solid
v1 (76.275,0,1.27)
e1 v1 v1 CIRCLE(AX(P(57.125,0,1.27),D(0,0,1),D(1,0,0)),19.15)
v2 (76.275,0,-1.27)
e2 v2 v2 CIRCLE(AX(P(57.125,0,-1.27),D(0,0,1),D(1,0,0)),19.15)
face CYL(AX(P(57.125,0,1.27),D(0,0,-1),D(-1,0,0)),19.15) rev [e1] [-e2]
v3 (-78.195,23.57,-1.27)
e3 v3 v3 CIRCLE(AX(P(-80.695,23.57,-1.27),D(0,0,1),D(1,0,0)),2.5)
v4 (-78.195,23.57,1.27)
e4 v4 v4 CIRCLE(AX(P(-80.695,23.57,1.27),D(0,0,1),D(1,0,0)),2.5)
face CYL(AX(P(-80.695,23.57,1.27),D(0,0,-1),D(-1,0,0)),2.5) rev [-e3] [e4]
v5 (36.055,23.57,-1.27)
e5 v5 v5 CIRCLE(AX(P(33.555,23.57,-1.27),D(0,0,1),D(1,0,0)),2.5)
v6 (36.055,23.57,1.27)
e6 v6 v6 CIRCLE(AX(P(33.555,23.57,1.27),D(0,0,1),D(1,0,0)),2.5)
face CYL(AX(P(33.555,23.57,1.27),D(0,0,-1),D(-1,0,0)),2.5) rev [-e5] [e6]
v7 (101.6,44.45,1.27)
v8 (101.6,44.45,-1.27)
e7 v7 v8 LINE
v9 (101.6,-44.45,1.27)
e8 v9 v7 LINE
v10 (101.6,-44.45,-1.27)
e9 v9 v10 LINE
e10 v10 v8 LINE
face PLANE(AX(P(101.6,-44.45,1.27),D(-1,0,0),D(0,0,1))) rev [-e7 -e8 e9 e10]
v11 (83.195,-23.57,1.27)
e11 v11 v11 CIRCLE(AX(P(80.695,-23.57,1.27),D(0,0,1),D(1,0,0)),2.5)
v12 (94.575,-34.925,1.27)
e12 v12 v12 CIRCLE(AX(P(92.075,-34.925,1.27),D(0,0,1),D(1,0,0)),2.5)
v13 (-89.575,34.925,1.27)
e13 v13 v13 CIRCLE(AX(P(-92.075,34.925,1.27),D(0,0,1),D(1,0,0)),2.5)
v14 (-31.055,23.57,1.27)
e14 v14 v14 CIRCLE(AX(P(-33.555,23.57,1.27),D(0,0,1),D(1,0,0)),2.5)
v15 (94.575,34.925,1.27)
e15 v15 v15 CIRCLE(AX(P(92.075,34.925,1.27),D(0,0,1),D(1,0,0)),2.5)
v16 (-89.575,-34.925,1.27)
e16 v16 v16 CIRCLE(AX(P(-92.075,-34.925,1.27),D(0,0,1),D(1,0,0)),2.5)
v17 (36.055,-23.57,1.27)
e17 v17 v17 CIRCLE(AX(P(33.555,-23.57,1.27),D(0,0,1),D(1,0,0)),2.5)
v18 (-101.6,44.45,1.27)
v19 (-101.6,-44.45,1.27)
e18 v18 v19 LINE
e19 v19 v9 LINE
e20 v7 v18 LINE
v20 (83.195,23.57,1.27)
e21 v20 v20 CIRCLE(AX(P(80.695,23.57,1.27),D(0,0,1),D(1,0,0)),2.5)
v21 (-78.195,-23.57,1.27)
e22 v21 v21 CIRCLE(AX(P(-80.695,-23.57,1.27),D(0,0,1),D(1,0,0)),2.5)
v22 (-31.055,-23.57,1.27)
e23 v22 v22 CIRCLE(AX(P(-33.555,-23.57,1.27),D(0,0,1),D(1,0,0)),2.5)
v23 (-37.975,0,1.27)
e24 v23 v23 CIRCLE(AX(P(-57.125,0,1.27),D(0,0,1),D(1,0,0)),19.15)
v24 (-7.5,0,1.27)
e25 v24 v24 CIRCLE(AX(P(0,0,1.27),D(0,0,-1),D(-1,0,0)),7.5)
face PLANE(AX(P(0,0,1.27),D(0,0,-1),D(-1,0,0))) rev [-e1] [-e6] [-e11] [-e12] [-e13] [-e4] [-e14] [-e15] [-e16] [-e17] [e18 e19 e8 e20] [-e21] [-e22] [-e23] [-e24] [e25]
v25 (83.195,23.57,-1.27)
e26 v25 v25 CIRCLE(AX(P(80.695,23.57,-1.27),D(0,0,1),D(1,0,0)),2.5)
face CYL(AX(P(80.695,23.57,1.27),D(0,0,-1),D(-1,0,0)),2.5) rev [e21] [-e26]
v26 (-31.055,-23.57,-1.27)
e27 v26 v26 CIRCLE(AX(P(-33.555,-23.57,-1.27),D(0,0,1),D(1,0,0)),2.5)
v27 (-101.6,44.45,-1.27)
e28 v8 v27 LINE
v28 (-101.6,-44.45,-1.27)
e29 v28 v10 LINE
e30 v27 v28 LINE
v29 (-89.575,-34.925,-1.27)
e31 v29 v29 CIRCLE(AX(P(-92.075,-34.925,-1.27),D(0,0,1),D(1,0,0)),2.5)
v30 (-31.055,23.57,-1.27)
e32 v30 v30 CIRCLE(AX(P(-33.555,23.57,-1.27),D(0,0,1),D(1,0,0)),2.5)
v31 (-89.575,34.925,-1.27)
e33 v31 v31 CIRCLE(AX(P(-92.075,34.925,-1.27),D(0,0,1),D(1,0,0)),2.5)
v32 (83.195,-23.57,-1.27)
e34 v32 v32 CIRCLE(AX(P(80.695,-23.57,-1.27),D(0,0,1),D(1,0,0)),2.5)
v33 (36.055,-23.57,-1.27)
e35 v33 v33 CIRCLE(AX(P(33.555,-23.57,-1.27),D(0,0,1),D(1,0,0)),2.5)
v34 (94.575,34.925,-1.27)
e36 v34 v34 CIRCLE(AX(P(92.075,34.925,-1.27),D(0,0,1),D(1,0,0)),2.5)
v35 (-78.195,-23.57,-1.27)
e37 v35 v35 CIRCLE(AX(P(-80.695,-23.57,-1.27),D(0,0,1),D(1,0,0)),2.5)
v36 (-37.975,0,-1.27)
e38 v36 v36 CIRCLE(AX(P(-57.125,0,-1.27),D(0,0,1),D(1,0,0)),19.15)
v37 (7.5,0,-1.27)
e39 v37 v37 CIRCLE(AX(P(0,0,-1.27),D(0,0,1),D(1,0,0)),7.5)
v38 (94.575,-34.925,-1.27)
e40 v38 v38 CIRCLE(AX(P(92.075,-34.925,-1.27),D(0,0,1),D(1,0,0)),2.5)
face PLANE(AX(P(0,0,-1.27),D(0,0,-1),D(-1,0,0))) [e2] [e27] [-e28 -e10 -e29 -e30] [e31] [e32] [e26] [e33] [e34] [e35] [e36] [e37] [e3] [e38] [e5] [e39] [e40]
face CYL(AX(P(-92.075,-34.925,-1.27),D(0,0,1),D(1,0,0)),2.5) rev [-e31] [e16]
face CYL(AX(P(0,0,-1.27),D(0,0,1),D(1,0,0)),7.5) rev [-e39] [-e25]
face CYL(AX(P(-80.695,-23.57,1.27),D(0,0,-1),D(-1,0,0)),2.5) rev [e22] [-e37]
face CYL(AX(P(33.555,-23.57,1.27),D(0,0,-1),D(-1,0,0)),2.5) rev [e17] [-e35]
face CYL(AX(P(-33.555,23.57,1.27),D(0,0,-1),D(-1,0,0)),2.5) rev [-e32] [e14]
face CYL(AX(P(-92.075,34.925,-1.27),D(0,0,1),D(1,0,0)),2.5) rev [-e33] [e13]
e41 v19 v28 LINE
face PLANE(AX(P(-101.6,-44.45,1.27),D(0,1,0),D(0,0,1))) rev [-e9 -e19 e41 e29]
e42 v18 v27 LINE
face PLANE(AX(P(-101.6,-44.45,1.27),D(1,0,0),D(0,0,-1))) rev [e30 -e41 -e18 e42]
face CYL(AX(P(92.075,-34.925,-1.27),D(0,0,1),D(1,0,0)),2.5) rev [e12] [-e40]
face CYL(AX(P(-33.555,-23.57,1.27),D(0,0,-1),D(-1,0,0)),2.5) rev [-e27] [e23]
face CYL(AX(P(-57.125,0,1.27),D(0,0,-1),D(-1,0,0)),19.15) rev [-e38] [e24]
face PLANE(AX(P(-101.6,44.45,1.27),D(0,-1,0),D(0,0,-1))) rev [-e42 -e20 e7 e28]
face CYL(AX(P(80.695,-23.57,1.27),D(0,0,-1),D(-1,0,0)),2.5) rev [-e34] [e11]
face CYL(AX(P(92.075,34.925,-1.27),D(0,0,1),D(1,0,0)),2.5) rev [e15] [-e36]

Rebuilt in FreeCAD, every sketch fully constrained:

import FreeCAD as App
import Part
import Sketcher
Q = App.Units.Quantity


def add_polygon(sketch, points):
    """Adds a closed chain of lines whose ends are joined by coincident constraints."""
    first, n = sketch.GeometryCount, len(points)
    for a, b in zip(points, points[1:] + points[:1]):
        sketch.addGeometry(Part.LineSegment(App.Vector(*a, 0), App.Vector(*b, 0)), False)
    for i in range(n):
        sketch.addConstraint(Sketcher.Constraint("Coincident", first + i, 2, first + (i + 1) % n, 1))

doc = App.newDocument("Part")
body = doc.addObject("PartDesign::Body", "Body")

sketch1 = body.newObject("Sketcher::SketchObject", "Sketch")
sketch1.AttachmentSupport = (doc.getObject("XY_Plane"), [""])
sketch1.MapMode = "FlatFace"
add_polygon(sketch1, [(-101.6, 44.45), (-101.6, -44.45), (101.6, -44.45), (101.6, 44.45)])
sketch1.addGeometry(Part.Circle(App.Vector(-80.695, -23.57, 0), App.Vector(0, 0, 1), 2.5), False)
sketch1.addGeometry(Part.Circle(App.Vector(-33.555, -23.57, 0), App.Vector(0, 0, 1), 2.5), False)
sketch1.addGeometry(Part.Circle(App.Vector(33.555, -23.57, 0), App.Vector(0, 0, 1), 2.5), False)
sketch1.addGeometry(Part.Circle(App.Vector(80.695, -23.57, 0), App.Vector(0, 0, 1), 2.5), False)
sketch1.addGeometry(Part.Circle(App.Vector(-57.125, 0, 0), App.Vector(0, 0, 1), 19.15), False)
sketch1.addGeometry(Part.Circle(App.Vector(-80.695, 23.57, 0), App.Vector(0, 0, 1), 2.5), False)
sketch1.addGeometry(Part.Circle(App.Vector(-33.555, 23.57, 0), App.Vector(0, 0, 1), 2.5), False)
sketch1.addGeometry(Part.Circle(App.Vector(57.125, 0, 0), App.Vector(0, 0, 1), 19.15), False)
sketch1.addGeometry(Part.Circle(App.Vector(33.555, 23.57, 0), App.Vector(0, 0, 1), 2.5), False)
sketch1.addGeometry(Part.Circle(App.Vector(80.695, 23.57, 0), App.Vector(0, 0, 1), 2.5), False)
sketch1.addConstraint(Sketcher.Constraint("Vertical", 0))
sketch1.addConstraint(Sketcher.Constraint("Horizontal", 1))
sketch1.addConstraint(Sketcher.Constraint("Vertical", 2))
sketch1.addConstraint(Sketcher.Constraint("Horizontal", 3))
sketch1.addConstraint(Sketcher.Constraint("Equal", 4, 5))
sketch1.addConstraint(Sketcher.Constraint("Equal", 5, 6))
sketch1.addConstraint(Sketcher.Constraint("Equal", 6, 7))
sketch1.addConstraint(Sketcher.Constraint("Equal", 7, 9))
sketch1.addConstraint(Sketcher.Constraint("Equal", 9, 10))
sketch1.addConstraint(Sketcher.Constraint("Equal", 8, 11))
sketch1.addConstraint(Sketcher.Constraint("Equal", 10, 12))
sketch1.addConstraint(Sketcher.Constraint("Equal", 12, 13))
sketch1.addConstraint(Sketcher.Constraint("Symmetric", 7, 3, 9, 3, -1, 1))
sketch1.addConstraint(Sketcher.Constraint("Symmetric", 6, 3, 10, 3, -1, 1))
sketch1.addConstraint(Sketcher.Constraint("Symmetric", 8, 3, 11, 3, -1, 1))
sketch1.addConstraint(Sketcher.Constraint("Symmetric", 5, 3, 12, 3, -1, 1))
sketch1.addConstraint(Sketcher.Constraint("Symmetric", 4, 3, 13, 3, -1, 1))
sketch1.addConstraint(Sketcher.Constraint("Symmetric", 0, 2, 2, 2, -1, 1))
sketch1.addConstraint(Sketcher.Constraint("Symmetric", 5, 3, 6, 3, -2))
sketch1.addConstraint(Sketcher.Constraint("Symmetric", 4, 3, 7, 3, -2))
sketch1.addConstraint(Sketcher.Constraint("PointOnObject", 8, 3, -1))
sketch1.addConstraint(Sketcher.Constraint("Horizontal", 4, 3, 5, 3))
sketch1.addConstraint(Sketcher.Constraint("Diameter", 4, Q("5 mm")))
sketch1.addConstraint(Sketcher.Constraint("Diameter", 8, Q("38.3 mm")))
sketch1.addConstraint(Sketcher.Constraint("DistanceX", 1, 1, 1, 2, Q("203.2 mm")))
sketch1.addConstraint(Sketcher.Constraint("DistanceY", 0, 2, 0, 1, Q("88.9 mm")))
sketch1.addConstraint(Sketcher.Constraint("DistanceY", 4, 3, -1, 1, Q("23.57 mm")))
sketch1.addConstraint(Sketcher.Constraint("DistanceX", 4, 3, 5, 3, Q("47.14 mm")))
sketch1.addConstraint(Sketcher.Constraint("DistanceX", 5, 3, 6, 3, Q("67.11 mm")))
sketch1.addConstraint(Sketcher.Constraint("DistanceX", 4, 3, 8, 3, Q("23.57 mm")))
pad1 = body.newObject("PartDesign::Pad", "Pad")
pad1.Profile = sketch1
pad1.Length = 2.54
pad1.Midplane = True

sketch2 = body.newObject("Sketcher::SketchObject", "Sketch001")
sketch2.AttachmentSupport = (doc.getObject("XY_Plane"), [""])
sketch2.MapMode = "FlatFace"
sketch2.AttachmentOffset = App.Placement(App.Vector(0, 0, 1.27), App.Rotation())
sketch2.addGeometry(Part.Circle(App.Vector(-92.075, 34.925, 0), App.Vector(0, 0, 1), 2.5), False)
sketch2.addGeometry(Part.Circle(App.Vector(-92.075, -34.925, 0), App.Vector(0, 0, 1), 2.5), False)
sketch2.addGeometry(Part.Circle(App.Vector(92.075, -34.925, 0), App.Vector(0, 0, 1), 2.5), False)
sketch2.addGeometry(Part.Circle(App.Vector(92.075, 34.925, 0), App.Vector(0, 0, 1), 2.5), False)
sketch2.addConstraint(Sketcher.Constraint("Equal", 0, 1))
sketch2.addConstraint(Sketcher.Constraint("Equal", 1, 2))
sketch2.addConstraint(Sketcher.Constraint("Equal", 2, 3))
sketch2.addConstraint(Sketcher.Constraint("Symmetric", 0, 3, 2, 3, -1, 1))
sketch2.addConstraint(Sketcher.Constraint("Symmetric", 1, 3, 3, 3, -1, 1))
sketch2.addConstraint(Sketcher.Constraint("Symmetric", 1, 3, 2, 3, -2))
sketch2.addConstraint(Sketcher.Constraint("Diameter", 0, Q("5 mm")))
sketch2.addConstraint(Sketcher.Constraint("DistanceY", 1, 3, 0, 3, Q("69.85 mm")))
sketch2.addConstraint(Sketcher.Constraint("DistanceX", 1, 3, 2, 3, Q("184.15 mm")))
pocket1 = body.newObject("PartDesign::Pocket", "Pocket")
pocket1.Profile = sketch2
pocket1.Type = "ThroughAll"

sketch3 = body.newObject("Sketcher::SketchObject", "Sketch002")
sketch3.AttachmentSupport = (doc.getObject("XY_Plane"), [""])
sketch3.MapMode = "FlatFace"
sketch3.AttachmentOffset = App.Placement(App.Vector(0, 0, 1.27), App.Rotation())
sketch3.addGeometry(Part.Circle(App.Vector(0, 0, 0), App.Vector(0, 0, 1), 7.5), False)
sketch3.addConstraint(Sketcher.Constraint("Coincident", 0, 3, -1, 1))
sketch3.addConstraint(Sketcher.Constraint("Diameter", 0, Q("15 mm")))
pocket2 = body.newObject("PartDesign::Pocket", "Pocket001")
pocket2.Profile = sketch3
pocket2.Type = "ThroughAll"
pocket2.Midplane = True

doc.recompute()
